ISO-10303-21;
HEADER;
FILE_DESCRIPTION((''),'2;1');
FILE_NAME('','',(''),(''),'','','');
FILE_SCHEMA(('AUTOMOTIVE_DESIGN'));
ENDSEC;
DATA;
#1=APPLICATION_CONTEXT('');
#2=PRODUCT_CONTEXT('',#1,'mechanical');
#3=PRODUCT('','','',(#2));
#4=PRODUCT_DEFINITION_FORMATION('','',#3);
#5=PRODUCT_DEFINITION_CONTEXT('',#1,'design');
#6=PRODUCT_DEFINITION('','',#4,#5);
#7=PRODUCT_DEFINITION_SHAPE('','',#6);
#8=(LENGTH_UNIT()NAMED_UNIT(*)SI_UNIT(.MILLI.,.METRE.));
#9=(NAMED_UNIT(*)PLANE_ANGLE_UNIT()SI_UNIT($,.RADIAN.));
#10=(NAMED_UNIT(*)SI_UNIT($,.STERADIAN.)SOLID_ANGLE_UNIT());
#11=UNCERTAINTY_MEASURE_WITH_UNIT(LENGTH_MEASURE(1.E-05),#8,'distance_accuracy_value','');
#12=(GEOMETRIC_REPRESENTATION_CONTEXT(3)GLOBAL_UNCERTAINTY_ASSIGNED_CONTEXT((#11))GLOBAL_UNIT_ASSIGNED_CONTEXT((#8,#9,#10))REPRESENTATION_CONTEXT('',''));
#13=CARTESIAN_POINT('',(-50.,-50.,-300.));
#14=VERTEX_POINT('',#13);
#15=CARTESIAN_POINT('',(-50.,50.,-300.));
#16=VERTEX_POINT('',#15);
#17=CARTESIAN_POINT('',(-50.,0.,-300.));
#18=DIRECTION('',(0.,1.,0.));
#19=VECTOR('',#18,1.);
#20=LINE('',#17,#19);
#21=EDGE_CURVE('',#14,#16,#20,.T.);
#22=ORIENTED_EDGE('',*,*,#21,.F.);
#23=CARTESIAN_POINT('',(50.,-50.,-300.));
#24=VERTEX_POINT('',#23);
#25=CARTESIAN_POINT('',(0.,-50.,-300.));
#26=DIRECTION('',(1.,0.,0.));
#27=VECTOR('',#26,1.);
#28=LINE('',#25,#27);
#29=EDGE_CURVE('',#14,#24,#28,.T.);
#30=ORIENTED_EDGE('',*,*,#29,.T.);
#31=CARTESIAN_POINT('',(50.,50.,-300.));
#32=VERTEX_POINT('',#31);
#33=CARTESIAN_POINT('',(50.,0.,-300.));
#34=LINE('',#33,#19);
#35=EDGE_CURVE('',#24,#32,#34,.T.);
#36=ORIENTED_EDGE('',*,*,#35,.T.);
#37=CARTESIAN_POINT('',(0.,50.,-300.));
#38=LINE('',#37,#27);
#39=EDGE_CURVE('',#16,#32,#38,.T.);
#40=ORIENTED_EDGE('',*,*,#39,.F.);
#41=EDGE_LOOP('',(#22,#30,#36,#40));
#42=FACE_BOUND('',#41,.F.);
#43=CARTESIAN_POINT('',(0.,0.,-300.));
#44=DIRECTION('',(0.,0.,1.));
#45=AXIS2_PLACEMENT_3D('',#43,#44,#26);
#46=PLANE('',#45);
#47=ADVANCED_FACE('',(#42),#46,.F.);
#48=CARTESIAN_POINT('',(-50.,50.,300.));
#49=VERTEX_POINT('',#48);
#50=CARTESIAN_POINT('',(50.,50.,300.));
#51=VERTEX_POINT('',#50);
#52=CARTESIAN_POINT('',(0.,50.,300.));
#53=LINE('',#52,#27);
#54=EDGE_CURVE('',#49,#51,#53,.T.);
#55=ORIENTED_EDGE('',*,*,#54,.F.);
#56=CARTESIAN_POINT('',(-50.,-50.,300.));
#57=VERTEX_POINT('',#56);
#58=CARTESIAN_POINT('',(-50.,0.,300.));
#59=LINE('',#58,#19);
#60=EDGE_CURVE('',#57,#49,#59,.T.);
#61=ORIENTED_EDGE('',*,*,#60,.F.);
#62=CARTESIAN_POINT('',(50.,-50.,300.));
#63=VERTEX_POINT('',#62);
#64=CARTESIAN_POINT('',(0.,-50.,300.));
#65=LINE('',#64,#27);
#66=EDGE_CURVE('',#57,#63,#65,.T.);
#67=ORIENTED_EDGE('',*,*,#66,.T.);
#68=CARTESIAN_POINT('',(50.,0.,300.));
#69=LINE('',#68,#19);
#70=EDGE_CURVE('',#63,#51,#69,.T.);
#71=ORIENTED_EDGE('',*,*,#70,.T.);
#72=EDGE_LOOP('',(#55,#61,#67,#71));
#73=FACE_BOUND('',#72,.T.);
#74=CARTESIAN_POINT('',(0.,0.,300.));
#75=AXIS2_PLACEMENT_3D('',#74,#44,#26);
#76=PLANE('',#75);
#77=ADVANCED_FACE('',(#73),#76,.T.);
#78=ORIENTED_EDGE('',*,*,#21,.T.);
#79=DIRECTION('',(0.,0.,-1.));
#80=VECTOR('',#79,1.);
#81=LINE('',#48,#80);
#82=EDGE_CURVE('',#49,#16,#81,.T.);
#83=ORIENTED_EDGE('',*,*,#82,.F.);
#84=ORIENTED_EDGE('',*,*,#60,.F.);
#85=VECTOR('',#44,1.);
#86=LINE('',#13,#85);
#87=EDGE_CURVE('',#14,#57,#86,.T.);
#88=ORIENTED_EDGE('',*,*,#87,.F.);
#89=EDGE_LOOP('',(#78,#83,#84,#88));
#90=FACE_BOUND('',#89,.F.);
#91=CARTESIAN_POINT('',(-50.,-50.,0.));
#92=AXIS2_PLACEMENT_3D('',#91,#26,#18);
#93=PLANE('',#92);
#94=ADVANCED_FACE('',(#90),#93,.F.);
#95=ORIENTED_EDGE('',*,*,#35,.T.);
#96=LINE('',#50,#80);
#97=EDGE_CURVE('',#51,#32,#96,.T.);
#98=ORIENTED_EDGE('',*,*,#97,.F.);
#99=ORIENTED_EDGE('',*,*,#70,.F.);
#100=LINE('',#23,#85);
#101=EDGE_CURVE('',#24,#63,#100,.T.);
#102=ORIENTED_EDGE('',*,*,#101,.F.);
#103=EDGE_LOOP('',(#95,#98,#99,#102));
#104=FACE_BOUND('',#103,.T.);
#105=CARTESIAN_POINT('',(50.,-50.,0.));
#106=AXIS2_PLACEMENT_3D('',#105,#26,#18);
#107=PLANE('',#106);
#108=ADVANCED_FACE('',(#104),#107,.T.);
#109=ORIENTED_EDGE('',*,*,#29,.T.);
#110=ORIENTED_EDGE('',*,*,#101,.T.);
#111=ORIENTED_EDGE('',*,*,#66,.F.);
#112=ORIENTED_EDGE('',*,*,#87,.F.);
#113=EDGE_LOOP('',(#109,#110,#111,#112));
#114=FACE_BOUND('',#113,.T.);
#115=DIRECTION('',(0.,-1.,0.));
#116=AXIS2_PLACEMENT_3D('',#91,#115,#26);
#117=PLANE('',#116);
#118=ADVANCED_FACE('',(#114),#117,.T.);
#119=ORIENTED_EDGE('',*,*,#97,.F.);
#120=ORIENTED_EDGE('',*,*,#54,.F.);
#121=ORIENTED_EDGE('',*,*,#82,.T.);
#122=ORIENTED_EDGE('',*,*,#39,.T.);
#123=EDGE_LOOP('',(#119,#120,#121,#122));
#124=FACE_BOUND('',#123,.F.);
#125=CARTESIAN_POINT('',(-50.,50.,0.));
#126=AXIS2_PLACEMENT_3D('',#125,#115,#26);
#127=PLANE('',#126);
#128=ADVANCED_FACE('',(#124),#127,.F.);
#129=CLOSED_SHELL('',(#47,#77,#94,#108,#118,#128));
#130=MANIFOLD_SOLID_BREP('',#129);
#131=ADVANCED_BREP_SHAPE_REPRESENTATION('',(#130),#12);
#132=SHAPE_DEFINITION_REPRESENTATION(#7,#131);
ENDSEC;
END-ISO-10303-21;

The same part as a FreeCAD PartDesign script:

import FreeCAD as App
import Part
import Sketcher

V = App.Vector
Q = App.Units.Quantity


def add_polygon(sketch, points):
    """Adds a closed chain of lines whose ends are joined by coincident constraints."""
    first, n = sketch.GeometryCount, len(points)
    for a, b in zip(points, points[1:] + points[:1]):
        sketch.addGeometry(Part.LineSegment(App.Vector(*a, 0), App.Vector(*b, 0)), False)
    for i in range(n):
        sketch.addConstraint(Sketcher.Constraint("Coincident", first + i, 2, first + (i + 1) % n, 1))

doc = App.newDocument("Part")
body = doc.addObject("PartDesign::Body", "Body")

sketch1 = body.newObject("Sketcher::SketchObject", "Sketch")
sketch1.AttachmentSupport = (doc.getObject("XY_Plane"), [""])
sketch1.MapMode = "FlatFace"
add_polygon(sketch1, [(-50, 50), (-50, -50), (50, -50), (50, 50)])
sketch1.addConstraint([
    Sketcher.Constraint("Vertical", 0),
    Sketcher.Constraint("Horizontal", 1),
    Sketcher.Constraint("Vertical", 2),
    Sketcher.Constraint("Horizontal", 3),
    Sketcher.Constraint("Symmetric", 0, 2, 2, 2, -1, 1),
    Sketcher.Constraint("Equal", 3, 0),
    Sketcher.Constraint("DistanceX", 1, 1, 1, 2, Q("100 mm")),
])
pad1 = body.newObject("PartDesign::Pad", "Pad")
pad1.Profile = sketch1
pad1.Length = 600
pad1.Midplane = True

doc.recompute()
